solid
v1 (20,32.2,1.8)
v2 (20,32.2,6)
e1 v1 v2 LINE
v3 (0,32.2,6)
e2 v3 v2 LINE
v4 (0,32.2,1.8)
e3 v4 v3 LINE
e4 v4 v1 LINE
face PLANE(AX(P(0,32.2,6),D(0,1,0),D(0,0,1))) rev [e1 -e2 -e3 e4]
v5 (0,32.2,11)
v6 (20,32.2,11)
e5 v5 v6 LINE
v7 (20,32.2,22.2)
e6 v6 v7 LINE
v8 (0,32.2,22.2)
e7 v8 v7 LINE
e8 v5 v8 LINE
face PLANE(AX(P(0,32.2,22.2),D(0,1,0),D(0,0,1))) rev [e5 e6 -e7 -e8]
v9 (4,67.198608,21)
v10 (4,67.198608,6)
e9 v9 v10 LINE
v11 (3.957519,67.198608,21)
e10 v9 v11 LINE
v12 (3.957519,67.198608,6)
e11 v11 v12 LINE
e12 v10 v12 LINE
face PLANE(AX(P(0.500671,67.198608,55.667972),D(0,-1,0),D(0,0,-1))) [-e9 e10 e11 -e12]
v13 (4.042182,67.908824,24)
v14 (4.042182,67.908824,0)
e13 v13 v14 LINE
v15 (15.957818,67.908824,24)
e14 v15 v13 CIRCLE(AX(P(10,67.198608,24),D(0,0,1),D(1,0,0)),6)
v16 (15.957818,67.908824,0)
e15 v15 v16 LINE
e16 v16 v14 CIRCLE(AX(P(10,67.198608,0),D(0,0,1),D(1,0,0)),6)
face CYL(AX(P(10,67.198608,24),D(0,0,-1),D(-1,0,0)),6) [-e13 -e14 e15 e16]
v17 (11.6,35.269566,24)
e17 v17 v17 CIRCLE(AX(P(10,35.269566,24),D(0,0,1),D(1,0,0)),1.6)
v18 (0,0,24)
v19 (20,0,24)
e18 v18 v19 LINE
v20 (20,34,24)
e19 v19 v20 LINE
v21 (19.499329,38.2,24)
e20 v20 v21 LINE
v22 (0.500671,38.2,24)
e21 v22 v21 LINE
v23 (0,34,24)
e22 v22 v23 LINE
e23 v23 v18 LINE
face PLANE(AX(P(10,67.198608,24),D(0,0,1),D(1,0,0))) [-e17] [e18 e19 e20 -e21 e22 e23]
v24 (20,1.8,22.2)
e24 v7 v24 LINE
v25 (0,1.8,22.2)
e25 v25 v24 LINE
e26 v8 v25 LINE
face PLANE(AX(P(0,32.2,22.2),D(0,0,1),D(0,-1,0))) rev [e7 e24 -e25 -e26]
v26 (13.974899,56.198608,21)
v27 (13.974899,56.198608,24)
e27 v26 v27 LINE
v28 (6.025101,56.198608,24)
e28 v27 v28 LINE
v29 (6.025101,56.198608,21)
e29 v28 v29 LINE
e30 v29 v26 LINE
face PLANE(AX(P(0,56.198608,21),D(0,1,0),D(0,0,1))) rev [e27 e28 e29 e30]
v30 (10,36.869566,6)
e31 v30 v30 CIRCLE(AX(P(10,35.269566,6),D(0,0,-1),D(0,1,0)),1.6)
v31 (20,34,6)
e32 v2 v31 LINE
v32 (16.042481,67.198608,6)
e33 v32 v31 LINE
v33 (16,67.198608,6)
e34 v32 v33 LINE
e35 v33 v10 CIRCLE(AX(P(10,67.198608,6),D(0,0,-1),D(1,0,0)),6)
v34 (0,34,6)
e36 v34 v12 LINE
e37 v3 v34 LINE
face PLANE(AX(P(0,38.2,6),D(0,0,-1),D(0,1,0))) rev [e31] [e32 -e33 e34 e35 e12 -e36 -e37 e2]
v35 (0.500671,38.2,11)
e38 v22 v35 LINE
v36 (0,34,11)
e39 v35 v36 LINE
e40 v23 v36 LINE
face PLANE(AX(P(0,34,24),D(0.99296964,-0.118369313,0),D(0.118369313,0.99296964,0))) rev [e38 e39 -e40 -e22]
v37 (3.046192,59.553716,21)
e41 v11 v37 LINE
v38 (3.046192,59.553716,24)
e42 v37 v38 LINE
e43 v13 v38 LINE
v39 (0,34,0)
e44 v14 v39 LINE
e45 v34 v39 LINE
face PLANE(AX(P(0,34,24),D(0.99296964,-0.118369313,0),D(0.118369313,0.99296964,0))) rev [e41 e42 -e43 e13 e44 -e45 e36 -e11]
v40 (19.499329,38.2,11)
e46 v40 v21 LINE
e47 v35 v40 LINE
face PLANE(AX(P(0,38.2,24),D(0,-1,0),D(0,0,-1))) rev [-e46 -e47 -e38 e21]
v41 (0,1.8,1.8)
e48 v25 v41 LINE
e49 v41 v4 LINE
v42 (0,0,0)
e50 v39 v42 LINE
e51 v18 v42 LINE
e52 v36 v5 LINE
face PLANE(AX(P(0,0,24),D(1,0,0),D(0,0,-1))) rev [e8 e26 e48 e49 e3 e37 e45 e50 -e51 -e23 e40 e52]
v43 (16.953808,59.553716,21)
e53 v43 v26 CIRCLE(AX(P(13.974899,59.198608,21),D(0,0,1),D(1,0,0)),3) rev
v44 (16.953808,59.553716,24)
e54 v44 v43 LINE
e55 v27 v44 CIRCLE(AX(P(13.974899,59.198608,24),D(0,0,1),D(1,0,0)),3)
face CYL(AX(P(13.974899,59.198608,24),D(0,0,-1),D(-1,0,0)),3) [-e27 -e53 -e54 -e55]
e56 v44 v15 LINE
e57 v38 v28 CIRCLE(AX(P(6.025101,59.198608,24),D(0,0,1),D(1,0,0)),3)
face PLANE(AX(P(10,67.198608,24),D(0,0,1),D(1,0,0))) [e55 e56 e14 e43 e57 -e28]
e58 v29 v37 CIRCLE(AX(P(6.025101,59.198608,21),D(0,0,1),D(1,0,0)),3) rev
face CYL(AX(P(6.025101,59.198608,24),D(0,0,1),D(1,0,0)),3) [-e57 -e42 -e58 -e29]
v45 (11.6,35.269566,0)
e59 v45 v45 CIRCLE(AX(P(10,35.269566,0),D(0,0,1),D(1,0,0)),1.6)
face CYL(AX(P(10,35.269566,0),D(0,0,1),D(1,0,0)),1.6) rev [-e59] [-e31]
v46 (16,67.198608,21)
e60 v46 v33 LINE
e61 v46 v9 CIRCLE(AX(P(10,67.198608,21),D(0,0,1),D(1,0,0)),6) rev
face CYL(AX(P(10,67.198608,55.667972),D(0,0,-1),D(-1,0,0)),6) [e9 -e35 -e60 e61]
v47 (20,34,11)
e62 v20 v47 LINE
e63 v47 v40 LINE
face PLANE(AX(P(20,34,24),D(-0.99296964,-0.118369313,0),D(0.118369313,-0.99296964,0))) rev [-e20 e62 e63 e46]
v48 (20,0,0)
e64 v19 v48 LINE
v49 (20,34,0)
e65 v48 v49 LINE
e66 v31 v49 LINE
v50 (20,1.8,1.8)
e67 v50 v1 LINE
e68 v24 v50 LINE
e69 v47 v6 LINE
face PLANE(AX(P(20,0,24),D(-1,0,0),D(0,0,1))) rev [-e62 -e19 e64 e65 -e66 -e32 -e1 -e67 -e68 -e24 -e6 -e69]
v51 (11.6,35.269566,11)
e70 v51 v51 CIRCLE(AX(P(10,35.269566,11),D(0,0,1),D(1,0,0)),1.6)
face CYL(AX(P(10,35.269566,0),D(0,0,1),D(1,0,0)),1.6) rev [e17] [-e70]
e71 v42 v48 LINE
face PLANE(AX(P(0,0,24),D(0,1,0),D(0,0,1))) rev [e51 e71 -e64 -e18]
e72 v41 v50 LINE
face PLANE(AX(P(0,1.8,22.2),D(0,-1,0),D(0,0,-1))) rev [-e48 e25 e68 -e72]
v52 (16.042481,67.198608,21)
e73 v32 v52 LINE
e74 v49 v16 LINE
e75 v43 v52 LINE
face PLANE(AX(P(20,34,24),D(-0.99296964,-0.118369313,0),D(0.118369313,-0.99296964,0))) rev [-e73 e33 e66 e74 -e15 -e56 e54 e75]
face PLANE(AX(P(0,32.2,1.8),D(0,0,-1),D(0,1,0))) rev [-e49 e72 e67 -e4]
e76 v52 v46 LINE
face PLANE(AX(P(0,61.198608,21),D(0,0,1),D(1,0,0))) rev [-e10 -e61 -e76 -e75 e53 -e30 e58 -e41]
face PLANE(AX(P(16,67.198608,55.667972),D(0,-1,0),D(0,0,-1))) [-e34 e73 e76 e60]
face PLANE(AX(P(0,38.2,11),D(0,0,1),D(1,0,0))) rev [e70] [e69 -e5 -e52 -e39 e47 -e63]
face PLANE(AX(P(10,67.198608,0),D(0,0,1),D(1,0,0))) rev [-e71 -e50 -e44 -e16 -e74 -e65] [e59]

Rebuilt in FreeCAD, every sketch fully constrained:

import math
import FreeCAD as App
import Part
import Sketcher


def edges_at(feature, points):
    """Names of the edges that pass closest to the given points."""
    edges = feature.Shape.Edges
    near = lambda p: min(range(len(edges)), key=lambda i: edges[i].distToShape(Part.Vertex(*p))[0])
    return sorted({f"Edge{near(p) + 1}" for p in points})


def add_polygon(sketch, points):
    """Adds a closed chain of lines whose ends are joined by coincident constraints."""
    first, n = sketch.GeometryCount, len(points)
    for a, b in zip(points, points[1:] + points[:1]):
        sketch.addGeometry(Part.LineSegment(App.Vector(*a, 0), App.Vector(*b, 0)), False)
    for i in range(n):
        sketch.addConstraint(Sketcher.Constraint("Coincident", first + i, 2, first + (i + 1) % n, 1))

doc = App.newDocument("Part")
body = doc.addObject("PartDesign::Body", "Body")

sketch1 = body.newObject("Sketcher::SketchObject", "Sketch")
sketch1.AttachmentSupport = (doc.getObject("XY_Plane"), [""])
sketch1.MapMode = "FlatFace"
sketch1.addGeometry(Part.LineSegment(App.Vector(0, 0, 0), App.Vector(20, 0, 0)), False)
sketch1.addGeometry(Part.LineSegment(App.Vector(20, 0, 0), App.Vector(20, 34, 0)), False)
sketch1.addGeometry(Part.LineSegment(App.Vector(20, 34, 0), App.Vector(15.957818, 67.908824, 0)), False)
sketch1.addGeometry(Part.ArcOfCircle(Part.Circle(App.Vector(10, 67.198608, 0), App.Vector(0, 0, 1), 6), math.radians(6.798), math.radians(173.202)), False)
sketch1.addGeometry(Part.LineSegment(App.Vector(4.042182, 67.908824, 0), App.Vector(0, 34, 0)), False)
sketch1.addGeometry(Part.LineSegment(App.Vector(0, 34, 0), App.Vector(0, 0, 0)), False)
sketch1.addConstraint(Sketcher.Constraint("Coincident", 0, 2, 1, 1))
sketch1.addConstraint(Sketcher.Constraint("Coincident", 1, 2, 2, 1))
sketch1.addConstraint(Sketcher.Constraint("Tangent", 2, 2, 3, 1))
sketch1.addConstraint(Sketcher.Constraint("Tangent", 3, 2, 4, 1))
sketch1.addConstraint(Sketcher.Constraint("Coincident", 4, 2, 5, 1))
sketch1.addConstraint(Sketcher.Constraint("Coincident", 5, 2, 0, 1))
sketch1.addConstraint(Sketcher.Constraint("Horizontal", 0))
sketch1.addConstraint(Sketcher.Constraint("Vertical", 1))
sketch1.addConstraint(Sketcher.Constraint("Vertical", 5))
sketch1.addConstraint(Sketcher.Constraint("Coincident", 5, 2, -1, 1))
sketch1.addConstraint(Sketcher.Constraint("Horizontal", 2, 2, 3, 2))
sketch1.addConstraint(Sketcher.Constraint("Horizontal", 1, 2, 4, 2))
sketch1.addConstraint(Sketcher.Constraint("Radius", 3, 6.0))
sketch1.addConstraint(Sketcher.Constraint("DistanceX", 0, 1, 0, 2, 20.0))
sketch1.addConstraint(Sketcher.Constraint("DistanceY", 1, 1, 1, 2, 34.0))
sketch1.addConstraint(Sketcher.Constraint("Distance", 2, 34.148903))
pad1 = body.newObject("PartDesign::Pad", "Pad")
pad1.Profile = sketch1
pad1.Length = 24

sketch2 = body.newObject("Sketcher::SketchObject", "Sketch001")
sketch2.AttachmentSupport = (doc.getObject("YZ_Plane"), [""])
sketch2.MapMode = "FlatFace"
sketch2.AttachmentOffset = App.Placement(App.Vector(0, 0, 20), App.Rotation())
add_polygon(sketch2, [(32.2, 11), (32.2, 22.2), (1.8, 22.2), (1.8, 1.8), (32.2, 1.8), (32.2, 6), (61.198608, 6), (61.198608, 21), (56.198608, 21), (56.198608, 24), (38.2, 24), (38.2, 11)])
sketch2.addConstraint(Sketcher.Constraint("Vertical", 0))
sketch2.addConstraint(Sketcher.Constraint("Horizontal", 1))
sketch2.addConstraint(Sketcher.Constraint("Vertical", 2))
sketch2.addConstraint(Sketcher.Constraint("Horizontal", 3))
sketch2.addConstraint(Sketcher.Constraint("Vertical", 4))
sketch2.addConstraint(Sketcher.Constraint("Horizontal", 5))
sketch2.addConstraint(Sketcher.Constraint("Vertical", 6))
sketch2.addConstraint(Sketcher.Constraint("Horizontal", 7))
sketch2.addConstraint(Sketcher.Constraint("Vertical", 8))
sketch2.addConstraint(Sketcher.Constraint("Horizontal", 9))
sketch2.addConstraint(Sketcher.Constraint("Vertical", 10))
sketch2.addConstraint(Sketcher.Constraint("Horizontal", 11))
sketch2.addConstraint(Sketcher.Constraint("Vertical", 0, 2, 3, 2))
sketch2.addConstraint(Sketcher.Constraint("DistanceX", 7, 2, 7, 1, 5.0))
sketch2.addConstraint(Sketcher.Constraint("DistanceX", 11, 2, 11, 1, 6.0))
sketch2.addConstraint(Sketcher.Constraint("DistanceY", 6, 1, 6, 2, 15.0))
sketch2.addConstraint(Sketcher.Constraint("DistanceY", 8, 1, 8, 2, 3.0))
sketch2.addConstraint(Sketcher.Constraint("DistanceY", 10, 2, 10, 1, 13.0))
sketch2.addConstraint(Sketcher.Constraint("DistanceX", 1, 2, 1, 1, 30.4))
sketch2.addConstraint(Sketcher.Constraint("DistanceY", 0, 1, 0, 2, 11.2))
sketch2.addConstraint(Sketcher.Constraint("DistanceY", 2, 2, 2, 1, 20.4))
sketch2.addConstraint(Sketcher.Constraint("DistanceY", -1, 1, 4, 2, 6.0))
sketch2.addConstraint(Sketcher.Constraint("DistanceX", -1, 1, 0, 2, 32.2))
sketch2.addConstraint(Sketcher.Constraint("DistanceX", 5, 1, 5, 2, 28.998608))
pocket1 = body.newObject("PartDesign::Pocket", "Pocket")
pocket1.Profile = sketch2
pocket1.Type = "ThroughAll"

sketch3 = body.newObject("Sketcher::SketchObject", "Sketch002")
sketch3.AttachmentSupport = (doc.getObject("XY_Plane"), [""])
sketch3.MapMode = "FlatFace"
sketch3.AttachmentOffset = App.Placement(App.Vector(0, 0, 24), App.Rotation())
sketch3.addGeometry(Part.Circle(App.Vector(10, 35.269566, 0), App.Vector(0, 0, 1), 1.6), False)
sketch3.addConstraint(Sketcher.Constraint("Diameter", 0, 3.2))
sketch3.addConstraint(Sketcher.Constraint("DistanceX", -1, 1, 0, 3, 10.0))
sketch3.addConstraint(Sketcher.Constraint("DistanceY", -1, 1, 0, 3, 35.269566))
pocket2 = body.newObject("PartDesign::Pocket", "Pocket001")
pocket2.Profile = sketch3
pocket2.Type = "ThroughAll"

sketch4 = body.newObject("Sketcher::SketchObject", "Sketch003")
sketch4.AttachmentSupport = (doc.getObject("XY_Plane"), [""])
sketch4.MapMode = "FlatFace"
sketch4.AttachmentOffset = App.Placement(App.Vector(0, 0, 6), App.Rotation())
sketch4.addGeometry(Part.LineSegment(App.Vector(19.499329, 67.198608, 0), App.Vector(16, 67.198608, 0)), False)
sketch4.addGeometry(Part.ArcOfCircle(Part.Circle(App.Vector(10, 67.198608, 0), App.Vector(0, 0, 1), 6), math.radians(180), math.radians(360)), False)
sketch4.addGeometry(Part.LineSegment(App.Vector(4, 67.198608, 0), App.Vector(0.500671, 67.198608, 0)), False)
sketch4.addGeometry(Part.LineSegment(App.Vector(0.500671, 67.198608, 0), App.Vector(0.500671, 38.2, 0)), False)
sketch4.addGeometry(Part.LineSegment(App.Vector(0.500671, 38.2, 0), App.Vector(19.499329, 38.2, 0)), False)
sketch4.addGeometry(Part.LineSegment(App.Vector(19.499329, 38.2, 0), App.Vector(19.499329, 67.198608, 0)), False)
sketch4.addConstraint(Sketcher.Constraint("Coincident", 0, 2, 1, 2))
sketch4.addConstraint(Sketcher.Constraint("Coincident", 1, 1, 2, 1))
sketch4.addConstraint(Sketcher.Constraint("Coincident", 2, 2, 3, 1))
sketch4.addConstraint(Sketcher.Constraint("Coincident", 3, 2, 4, 1))
sketch4.addConstraint(Sketcher.Constraint("Coincident", 4, 2, 5, 1))
sketch4.addConstraint(Sketcher.Constraint("Coincident", 5, 2, 0, 1))
sketch4.addConstraint(Sketcher.Constraint("Horizontal", 0))
sketch4.addConstraint(Sketcher.Constraint("Horizontal", 2))
sketch4.addConstraint(Sketcher.Constraint("Vertical", 3))
sketch4.addConstraint(Sketcher.Constraint("Horizontal", 4))
sketch4.addConstraint(Sketcher.Constraint("Vertical", 5))
sketch4.addConstraint(Sketcher.Constraint("Horizontal", 1, 3, 0, 2))
sketch4.addConstraint(Sketcher.Constraint("Horizontal", 0, 2, 1, 1))
sketch4.addConstraint(Sketcher.Constraint("Equal", 0, 2))
sketch4.addConstraint(Sketcher.Constraint("Radius", 1, 6.0))
sketch4.addConstraint(Sketcher.Constraint("DistanceX", -1, 1, 1, 3, 10.0))
sketch4.addConstraint(Sketcher.Constraint("DistanceY", -1, 1, 3, 2, 38.2))
sketch4.addConstraint(Sketcher.Constraint("DistanceX", 0, 2, 0, 1, 3.499329))
sketch4.addConstraint(Sketcher.Constraint("DistanceY", 3, 2, 3, 1, 28.998608))
pocket3 = body.newObject("PartDesign::Pocket", "Pocket002")
pocket3.Profile = sketch4
pocket3.Length = 15
pocket3.Reversed = True
doc.recompute()

fillet = body.newObject("PartDesign::Fillet", "Fillet")
fillet.Base = (pocket3, edges_at(pocket3, [(17.354, 56.199, 22.5), (2.646, 56.199, 22.5)]))
fillet.Radius = 3

doc.recompute()
